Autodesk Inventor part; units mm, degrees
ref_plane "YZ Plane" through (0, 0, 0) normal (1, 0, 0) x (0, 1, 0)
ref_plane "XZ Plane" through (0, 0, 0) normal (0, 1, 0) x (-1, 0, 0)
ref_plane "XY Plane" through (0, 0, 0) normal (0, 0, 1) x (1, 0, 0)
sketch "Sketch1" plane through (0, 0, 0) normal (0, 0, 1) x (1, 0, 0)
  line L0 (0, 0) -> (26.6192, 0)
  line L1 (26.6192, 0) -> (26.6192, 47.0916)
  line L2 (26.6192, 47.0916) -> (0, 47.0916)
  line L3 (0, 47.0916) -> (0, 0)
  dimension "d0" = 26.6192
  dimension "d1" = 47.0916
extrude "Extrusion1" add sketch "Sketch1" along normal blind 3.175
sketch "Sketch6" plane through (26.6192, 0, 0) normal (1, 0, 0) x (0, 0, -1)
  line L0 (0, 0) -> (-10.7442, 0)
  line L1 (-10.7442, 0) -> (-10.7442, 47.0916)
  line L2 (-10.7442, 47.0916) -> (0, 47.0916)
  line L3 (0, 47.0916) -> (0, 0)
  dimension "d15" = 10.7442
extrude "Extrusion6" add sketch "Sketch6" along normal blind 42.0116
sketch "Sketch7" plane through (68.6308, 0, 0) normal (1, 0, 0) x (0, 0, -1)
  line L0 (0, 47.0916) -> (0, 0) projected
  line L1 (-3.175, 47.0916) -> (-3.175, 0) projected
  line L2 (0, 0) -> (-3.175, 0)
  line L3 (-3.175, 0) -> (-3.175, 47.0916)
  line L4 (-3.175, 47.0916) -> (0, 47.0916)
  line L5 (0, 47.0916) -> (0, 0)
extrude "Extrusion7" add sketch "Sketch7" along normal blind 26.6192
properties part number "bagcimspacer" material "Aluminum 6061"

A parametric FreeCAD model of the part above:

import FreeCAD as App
import Part
import Sketcher

V = App.Vector
Q = App.Units.Quantity


def add_polygon(sketch, points):
    """Adds a closed chain of lines whose ends are joined by coincident constraints."""
    first, n = sketch.GeometryCount, len(points)
    for a, b in zip(points, points[1:] + points[:1]):
        sketch.addGeometry(Part.LineSegment(App.Vector(*a, 0), App.Vector(*b, 0)), False)
    for i in range(n):
        sketch.addConstraint(Sketcher.Constraint("Coincident", first + i, 2, first + (i + 1) % n, 1))

doc = App.newDocument("Part")
params = doc.addObject("Spreadsheet::Sheet", "Params")
for row, (alias, value) in enumerate([
    ("sketch1_width", "1.048 in"),
    ("sketch1_height", "1.854 in"),
    ("pad1_length", "0.125 in"),
    ("sketch2_height", "0.423 in"),
    ("sketch2_width", "1.854 in"),
    ("pad2_length", "1.654 in"),
    ("sketch3_width", "1.854 in"),
    ("sketch3_height", "0.125 in"),
    ("pad3_length", "1.048 in"),
], start=1):
    params.set(f"A{row}", alias)
    params.set(f"B{row}", "=" + value)
    params.setAlias(f"B{row}", alias)

body = doc.addObject("PartDesign::Body", "Body")

sketch1 = body.newObject("Sketcher::SketchObject", "Sketch")
sketch1.AttachmentSupport = (doc.getObject("XY_Plane"), [""])
sketch1.MapMode = "FlatFace"
add_polygon(sketch1, [(0, 47), (0, 0), (27, 0), (27, 47)])
sketch1.addConstraint(Sketcher.Constraint("Vertical", 0))
sketch1.addConstraint(Sketcher.Constraint("Horizontal", 1))
sketch1.addConstraint(Sketcher.Constraint("Vertical", 2))
sketch1.addConstraint(Sketcher.Constraint("Horizontal", 3))
sketch1.addConstraint(Sketcher.Constraint("Coincident", 0, 2, -1, 1))
sketch1.addConstraint(Sketcher.Constraint("DistanceX", 1, 1, 1, 2, Q("1.048 in")))
sketch1.addConstraint(Sketcher.Constraint("DistanceY", 0, 2, 0, 1, Q("1.854 in")))
sketch1.setExpression("Constraints[9]", "Params.sketch1_width")
sketch1.setExpression("Constraints[10]", "Params.sketch1_height")
pad1 = body.newObject("PartDesign::Pad", "Pad")
pad1.Profile = sketch1
pad1.setExpression("Length", "Params.pad1_length")

sketch2 = body.newObject("Sketcher::SketchObject", "Sketch001")
sketch2.AttachmentSupport = (doc.getObject("YZ_Plane"), [""])
sketch2.MapMode = "FlatFace"
sketch2.AttachmentOffset = App.Placement(V(0, 0, 1.048 * 25.4), App.Rotation())
add_polygon(sketch2, [(0, 11), (0, 0), (47, 0), (47, 11)])
sketch2.addConstraint(Sketcher.Constraint("Vertical", 0))
sketch2.addConstraint(Sketcher.Constraint("Horizontal", 1))
sketch2.addConstraint(Sketcher.Constraint("Vertical", 2))
sketch2.addConstraint(Sketcher.Constraint("Horizontal", 3))
sketch2.addConstraint(Sketcher.Constraint("Coincident", 0, 2, -1, 1))
sketch2.addConstraint(Sketcher.Constraint("DistanceY", 0, 2, 0, 1, Q("0.423 in")))
sketch2.addConstraint(Sketcher.Constraint("DistanceX", 1, 1, 1, 2, Q("1.854 in")))
sketch2.setExpression("Constraints[9]", "Params.sketch2_height")
sketch2.setExpression("Constraints[10]", "Params.sketch2_width")
pad2 = body.newObject("PartDesign::Pad", "Pad001")
pad2.Profile = sketch2
pad2.setExpression("Length", "Params.pad2_length")

sketch3 = body.newObject("Sketcher::SketchObject", "Sketch002")
sketch3.AttachmentSupport = (doc.getObject("YZ_Plane"), [""])
sketch3.MapMode = "FlatFace"
sketch3.AttachmentOffset = App.Placement(V(0, 0, 2.702 * 25.4), App.Rotation())
add_polygon(sketch3, [(0, 0), (47.1, 0), (47.1, 3.2), (0, 3.2)])
sketch3.addConstraint(Sketcher.Constraint("Horizontal", 0))
sketch3.addConstraint(Sketcher.Constraint("Vertical", 1))
sketch3.addConstraint(Sketcher.Constraint("Horizontal", 2))
sketch3.addConstraint(Sketcher.Constraint("Vertical", 3))
sketch3.addConstraint(Sketcher.Constraint("Coincident", 3, 2, -1, 1))
sketch3.addConstraint(Sketcher.Constraint("DistanceX", 0, 1, 0, 2, Q("1.854 in")))
sketch3.addConstraint(Sketcher.Constraint("DistanceY", 1, 1, 1, 2, Q("0.125 in")))
sketch3.setExpression("Constraints[9]", "Params.sketch3_width")
sketch3.setExpression("Constraints[10]", "Params.sketch3_height")
pad3 = body.newObject("PartDesign::Pad", "Pad002")
pad3.Profile = sketch3
pad3.setExpression("Length", "Params.pad3_length")

doc.recompute()
